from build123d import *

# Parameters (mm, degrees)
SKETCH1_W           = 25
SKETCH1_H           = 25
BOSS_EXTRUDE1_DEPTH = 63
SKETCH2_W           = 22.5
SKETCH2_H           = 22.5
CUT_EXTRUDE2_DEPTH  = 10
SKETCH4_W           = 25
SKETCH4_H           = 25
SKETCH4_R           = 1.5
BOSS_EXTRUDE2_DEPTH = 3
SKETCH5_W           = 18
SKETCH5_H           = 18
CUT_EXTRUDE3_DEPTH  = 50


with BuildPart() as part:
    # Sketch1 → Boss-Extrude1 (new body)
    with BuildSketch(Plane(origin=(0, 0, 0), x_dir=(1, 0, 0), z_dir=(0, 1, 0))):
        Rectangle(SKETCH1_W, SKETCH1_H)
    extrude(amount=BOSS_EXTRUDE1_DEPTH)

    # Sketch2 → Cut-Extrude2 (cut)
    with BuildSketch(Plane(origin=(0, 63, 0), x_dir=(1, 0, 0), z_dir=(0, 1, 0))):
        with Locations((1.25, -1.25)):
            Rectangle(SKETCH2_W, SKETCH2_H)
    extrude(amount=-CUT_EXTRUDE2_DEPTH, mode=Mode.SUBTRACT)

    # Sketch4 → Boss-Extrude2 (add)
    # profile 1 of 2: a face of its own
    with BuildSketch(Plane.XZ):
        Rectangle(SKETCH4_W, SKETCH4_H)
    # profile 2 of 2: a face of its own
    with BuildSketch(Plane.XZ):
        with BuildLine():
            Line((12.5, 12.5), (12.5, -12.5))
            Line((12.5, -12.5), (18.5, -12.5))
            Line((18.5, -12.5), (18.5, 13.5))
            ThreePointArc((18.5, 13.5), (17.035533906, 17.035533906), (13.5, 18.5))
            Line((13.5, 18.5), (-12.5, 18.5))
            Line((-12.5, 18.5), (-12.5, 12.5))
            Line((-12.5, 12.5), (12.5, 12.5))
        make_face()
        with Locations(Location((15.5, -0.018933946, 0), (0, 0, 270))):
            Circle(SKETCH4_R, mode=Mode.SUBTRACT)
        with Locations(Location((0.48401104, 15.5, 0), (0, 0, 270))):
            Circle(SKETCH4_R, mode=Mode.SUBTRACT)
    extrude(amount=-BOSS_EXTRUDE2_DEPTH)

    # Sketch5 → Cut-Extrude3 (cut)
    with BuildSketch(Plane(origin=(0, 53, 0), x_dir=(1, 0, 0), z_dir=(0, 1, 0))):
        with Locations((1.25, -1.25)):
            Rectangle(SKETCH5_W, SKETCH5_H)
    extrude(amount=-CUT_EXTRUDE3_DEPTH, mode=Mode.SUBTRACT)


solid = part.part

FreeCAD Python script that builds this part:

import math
import FreeCAD as App
import Part
import Sketcher

V = App.Vector


def add_polygon(sketch, points):
    """Adds a closed chain of lines whose ends are joined by coincident constraints."""
    first, n = sketch.GeometryCount, len(points)
    for a, b in zip(points, points[1:] + points[:1]):
        sketch.addGeometry(Part.LineSegment(App.Vector(*a, 0), App.Vector(*b, 0)), False)
    for i in range(n):
        sketch.addConstraint(Sketcher.Constraint("Coincident", first + i, 2, first + (i + 1) % n, 1))

doc = App.newDocument("Part")
params = doc.addObject("Spreadsheet::Sheet", "Params")
for row, (alias, value) in enumerate([
    ("sketch1_width", "25 mm"),
    ("pad1_length", "63 mm"),
    ("sketch2_width", "22.5 mm"),
    ("pocket1_length", "10 mm"),
    ("sketch3_diameter", "3 mm"),
    ("sketch3_radius", "5 mm"),
    ("sketch3_width", "31 mm"),
    ("pad2_length", "3 mm"),
    ("sketch4_width", "18 mm"),
    ("pocket2_length", "50 mm"),
], start=1):
    params.set(f"A{row}", alias)
    params.set(f"B{row}", "=" + value)
    params.setAlias(f"B{row}", alias)

body = doc.addObject("PartDesign::Body", "Body")

# Sketch on XZ plane
sketch1 = doc.addObject("Sketcher::SketchObject", "Sketch")
body.addObject(sketch1)
sketch1.AttachmentSupport = (doc.XZ_Plane, [""])
sketch1.MapMode = "FlatFace"
add_polygon(sketch1, [(-12, -12), (-12, 12), (12, 12), (12, -12)])  # lines 0-3
sketch1.addConstraint(Sketcher.Constraint("Vertical", 0))
sketch1.addConstraint(Sketcher.Constraint("Horizontal", 1))
sketch1.addConstraint(Sketcher.Constraint("Vertical", 2))
sketch1.addConstraint(Sketcher.Constraint("Horizontal", 3))
sketch1.addConstraint(Sketcher.Constraint("Symmetric", 0, 2, 2, 2, -1, 1))
sketch1.addConstraint(Sketcher.Constraint("Equal", 3, 0))
sketch1.addConstraint(Sketcher.Constraint("DistanceX", 1, 1, 1, 2, 25.0))
sketch1.setExpression("Constraints[10]", "Params.sketch1_width")
pad1 = doc.addObject("PartDesign::Pad", "Pad")
body.addObject(pad1)
pad1.Profile = sketch1
pad1.setExpression("Length", "Params.pad1_length")
pad1.Reversed = True

# Sketch on XZ plane
sketch2 = doc.addObject("Sketcher::SketchObject", "Sketch001")
body.addObject(sketch2)
sketch2.AttachmentSupport = (doc.XZ_Plane, [""])
sketch2.MapMode = "FlatFace"
sketch2.AttachmentOffset = App.Placement(V(0, 0, -63), App.Rotation())
add_polygon(sketch2, [(-10, -10), (-10, 12), (12, 12), (12, -10)])  # lines 0-3
sketch2.addConstraint(Sketcher.Constraint("Vertical", 0))
sketch2.addConstraint(Sketcher.Constraint("Horizontal", 1))
sketch2.addConstraint(Sketcher.Constraint("Vertical", 2))
sketch2.addConstraint(Sketcher.Constraint("Horizontal", 3))
sketch2.addConstraint(Sketcher.Constraint("Equal", 3, 0))
sketch2.addConstraint(Sketcher.Constraint("DistanceX", 1, 1, 1, 2, 22.5))
sketch2.addConstraint(Sketcher.Constraint("DistanceX", 0, 2, -1, 1, 10.0))
sketch2.addConstraint(Sketcher.Constraint("DistanceY", 2, 2, -1, 1, 10.0))
sketch2.setExpression("Constraints[9]", "Params.sketch2_width")
pocket1 = doc.addObject("PartDesign::Pocket", "Pocket")
body.addObject(pocket1)
pocket1.Profile = sketch2
pocket1.setExpression("Length", "Params.pocket1_length")
pocket1.Reversed = True

# Sketch on XZ plane
sketch3 = doc.addObject("Sketcher::SketchObject", "Sketch002")
body.addObject(sketch3)
sketch3.AttachmentSupport = (doc.XZ_Plane, [""])
sketch3.MapMode = "FlatFace"
sketch3.addGeometry(Part.LineSegment(V(-12.5, -12.5, 0), V(18.5, -12.5, 0)), False)
sketch3.addGeometry(Part.LineSegment(V(18.5, -12.5, 0), V(18.5, 13.5, 0)), False)
sketch3.addGeometry(Part.ArcOfCircle(Part.Circle(V(13.5, 13.5, 0), V(0, 0, 1), 5), math.radians(0), math.radians(90)), False)
sketch3.addGeometry(Part.LineSegment(V(13.5, 18.5, 0), V(-12.5, 18.5, 0)), False)
sketch3.addGeometry(Part.LineSegment(V(-12.5, 18.5, 0), V(-12.5, -12.5, 0)), False)
sketch3.addGeometry(Part.Circle(V(0.5, 15.5, 0), V(0, 0, 1), 1.5), False)
sketch3.addGeometry(Part.Circle(V(15.5, 0, 0), V(0, 0, 1), 1.5), False)
sketch3.addConstraint(Sketcher.Constraint("Coincident", 0, 2, 1, 1))
sketch3.addConstraint(Sketcher.Constraint("Tangent", 1, 2, 2, 1))
sketch3.addConstraint(Sketcher.Constraint("Tangent", 2, 2, 3, 1))
sketch3.addConstraint(Sketcher.Constraint("Coincident", 3, 2, 4, 1))
sketch3.addConstraint(Sketcher.Constraint("Coincident", 4, 2, 0, 1))
sketch3.addConstraint(Sketcher.Constraint("Horizontal", 0))
sketch3.addConstraint(Sketcher.Constraint("Vertical", 1))
sketch3.addConstraint(Sketcher.Constraint("Horizontal", 3))
sketch3.addConstraint(Sketcher.Constraint("Vertical", 4))
sketch3.addConstraint(Sketcher.Constraint("Equal", 5, 6))
sketch3.addConstraint(Sketcher.Constraint("Equal", 3, 1))
sketch3.addConstraint(Sketcher.Constraint("Diameter", 5, 3.0))
sketch3.addConstraint(Sketcher.Constraint("Radius", 2, 5.0))
sketch3.addConstraint(Sketcher.Constraint("DistanceX", 0, 1, 0, 2, 31.0))
sketch3.addConstraint(Sketcher.Constraint("DistanceY", 2, 3, 5, 3, 2.0))
sketch3.addConstraint(Sketcher.Constraint("DistanceX", 2, 3, 6, 3, 2.0))
sketch3.addConstraint(Sketcher.Constraint("DistanceX", -1, 1, 2, 3, 13.5))
sketch3.addConstraint(Sketcher.Constraint("DistanceY", -1, 1, 2, 3, 13.5))
sketch3.addConstraint(Sketcher.Constraint("DistanceX", -1, 1, 5, 3, 0.484011))
sketch3.addConstraint(Sketcher.Constraint("DistanceY", 6, 3, -1, 1, 0.018934))
sketch3.setExpression("Constraints[11]", "Params.sketch3_diameter")
sketch3.setExpression("Constraints[12]", "Params.sketch3_radius")
sketch3.setExpression("Constraints[13]", "Params.sketch3_width")
pad2 = doc.addObject("PartDesign::Pad", "Pad001")
body.addObject(pad2)
pad2.Profile = sketch3
pad2.setExpression("Length", "Params.pad2_length")
pad2.Reversed = True

# Sketch on XZ plane
sketch4 = doc.addObject("Sketcher::SketchObject", "Sketch003")
body.addObject(sketch4)
sketch4.AttachmentSupport = (doc.XZ_Plane, [""])
sketch4.MapMode = "FlatFace"
sketch4.AttachmentOffset = App.Placement(V(0, 0, -53), App.Rotation())
add_polygon(sketch4, [(-8, -8), (-8, 10), (10, 10), (10, -8)])  # lines 0-3
sketch4.addConstraint(Sketcher.Constraint("Vertical", 0))
sketch4.addConstraint(Sketcher.Constraint("Horizontal", 1))
sketch4.addConstraint(Sketcher.Constraint("Vertical", 2))
sketch4.addConstraint(Sketcher.Constraint("Horizontal", 3))
sketch4.addConstraint(Sketcher.Constraint("Equal", 3, 0))
sketch4.addConstraint(Sketcher.Constraint("DistanceX", 1, 1, 1, 2, 18.0))
sketch4.addConstraint(Sketcher.Constraint("DistanceX", 0, 2, -1, 1, 7.75))
sketch4.addConstraint(Sketcher.Constraint("DistanceY", -1, 1, 0, 2, 10.25))
sketch4.setExpression("Constraints[9]", "Params.sketch4_width")
pocket2 = doc.addObject("PartDesign::Pocket", "Pocket001")
body.addObject(pocket2)
pocket2.Profile = sketch4
pocket2.setExpression("Length", "Params.pocket2_length")
pocket2.Reversed = True

doc.recompute()
